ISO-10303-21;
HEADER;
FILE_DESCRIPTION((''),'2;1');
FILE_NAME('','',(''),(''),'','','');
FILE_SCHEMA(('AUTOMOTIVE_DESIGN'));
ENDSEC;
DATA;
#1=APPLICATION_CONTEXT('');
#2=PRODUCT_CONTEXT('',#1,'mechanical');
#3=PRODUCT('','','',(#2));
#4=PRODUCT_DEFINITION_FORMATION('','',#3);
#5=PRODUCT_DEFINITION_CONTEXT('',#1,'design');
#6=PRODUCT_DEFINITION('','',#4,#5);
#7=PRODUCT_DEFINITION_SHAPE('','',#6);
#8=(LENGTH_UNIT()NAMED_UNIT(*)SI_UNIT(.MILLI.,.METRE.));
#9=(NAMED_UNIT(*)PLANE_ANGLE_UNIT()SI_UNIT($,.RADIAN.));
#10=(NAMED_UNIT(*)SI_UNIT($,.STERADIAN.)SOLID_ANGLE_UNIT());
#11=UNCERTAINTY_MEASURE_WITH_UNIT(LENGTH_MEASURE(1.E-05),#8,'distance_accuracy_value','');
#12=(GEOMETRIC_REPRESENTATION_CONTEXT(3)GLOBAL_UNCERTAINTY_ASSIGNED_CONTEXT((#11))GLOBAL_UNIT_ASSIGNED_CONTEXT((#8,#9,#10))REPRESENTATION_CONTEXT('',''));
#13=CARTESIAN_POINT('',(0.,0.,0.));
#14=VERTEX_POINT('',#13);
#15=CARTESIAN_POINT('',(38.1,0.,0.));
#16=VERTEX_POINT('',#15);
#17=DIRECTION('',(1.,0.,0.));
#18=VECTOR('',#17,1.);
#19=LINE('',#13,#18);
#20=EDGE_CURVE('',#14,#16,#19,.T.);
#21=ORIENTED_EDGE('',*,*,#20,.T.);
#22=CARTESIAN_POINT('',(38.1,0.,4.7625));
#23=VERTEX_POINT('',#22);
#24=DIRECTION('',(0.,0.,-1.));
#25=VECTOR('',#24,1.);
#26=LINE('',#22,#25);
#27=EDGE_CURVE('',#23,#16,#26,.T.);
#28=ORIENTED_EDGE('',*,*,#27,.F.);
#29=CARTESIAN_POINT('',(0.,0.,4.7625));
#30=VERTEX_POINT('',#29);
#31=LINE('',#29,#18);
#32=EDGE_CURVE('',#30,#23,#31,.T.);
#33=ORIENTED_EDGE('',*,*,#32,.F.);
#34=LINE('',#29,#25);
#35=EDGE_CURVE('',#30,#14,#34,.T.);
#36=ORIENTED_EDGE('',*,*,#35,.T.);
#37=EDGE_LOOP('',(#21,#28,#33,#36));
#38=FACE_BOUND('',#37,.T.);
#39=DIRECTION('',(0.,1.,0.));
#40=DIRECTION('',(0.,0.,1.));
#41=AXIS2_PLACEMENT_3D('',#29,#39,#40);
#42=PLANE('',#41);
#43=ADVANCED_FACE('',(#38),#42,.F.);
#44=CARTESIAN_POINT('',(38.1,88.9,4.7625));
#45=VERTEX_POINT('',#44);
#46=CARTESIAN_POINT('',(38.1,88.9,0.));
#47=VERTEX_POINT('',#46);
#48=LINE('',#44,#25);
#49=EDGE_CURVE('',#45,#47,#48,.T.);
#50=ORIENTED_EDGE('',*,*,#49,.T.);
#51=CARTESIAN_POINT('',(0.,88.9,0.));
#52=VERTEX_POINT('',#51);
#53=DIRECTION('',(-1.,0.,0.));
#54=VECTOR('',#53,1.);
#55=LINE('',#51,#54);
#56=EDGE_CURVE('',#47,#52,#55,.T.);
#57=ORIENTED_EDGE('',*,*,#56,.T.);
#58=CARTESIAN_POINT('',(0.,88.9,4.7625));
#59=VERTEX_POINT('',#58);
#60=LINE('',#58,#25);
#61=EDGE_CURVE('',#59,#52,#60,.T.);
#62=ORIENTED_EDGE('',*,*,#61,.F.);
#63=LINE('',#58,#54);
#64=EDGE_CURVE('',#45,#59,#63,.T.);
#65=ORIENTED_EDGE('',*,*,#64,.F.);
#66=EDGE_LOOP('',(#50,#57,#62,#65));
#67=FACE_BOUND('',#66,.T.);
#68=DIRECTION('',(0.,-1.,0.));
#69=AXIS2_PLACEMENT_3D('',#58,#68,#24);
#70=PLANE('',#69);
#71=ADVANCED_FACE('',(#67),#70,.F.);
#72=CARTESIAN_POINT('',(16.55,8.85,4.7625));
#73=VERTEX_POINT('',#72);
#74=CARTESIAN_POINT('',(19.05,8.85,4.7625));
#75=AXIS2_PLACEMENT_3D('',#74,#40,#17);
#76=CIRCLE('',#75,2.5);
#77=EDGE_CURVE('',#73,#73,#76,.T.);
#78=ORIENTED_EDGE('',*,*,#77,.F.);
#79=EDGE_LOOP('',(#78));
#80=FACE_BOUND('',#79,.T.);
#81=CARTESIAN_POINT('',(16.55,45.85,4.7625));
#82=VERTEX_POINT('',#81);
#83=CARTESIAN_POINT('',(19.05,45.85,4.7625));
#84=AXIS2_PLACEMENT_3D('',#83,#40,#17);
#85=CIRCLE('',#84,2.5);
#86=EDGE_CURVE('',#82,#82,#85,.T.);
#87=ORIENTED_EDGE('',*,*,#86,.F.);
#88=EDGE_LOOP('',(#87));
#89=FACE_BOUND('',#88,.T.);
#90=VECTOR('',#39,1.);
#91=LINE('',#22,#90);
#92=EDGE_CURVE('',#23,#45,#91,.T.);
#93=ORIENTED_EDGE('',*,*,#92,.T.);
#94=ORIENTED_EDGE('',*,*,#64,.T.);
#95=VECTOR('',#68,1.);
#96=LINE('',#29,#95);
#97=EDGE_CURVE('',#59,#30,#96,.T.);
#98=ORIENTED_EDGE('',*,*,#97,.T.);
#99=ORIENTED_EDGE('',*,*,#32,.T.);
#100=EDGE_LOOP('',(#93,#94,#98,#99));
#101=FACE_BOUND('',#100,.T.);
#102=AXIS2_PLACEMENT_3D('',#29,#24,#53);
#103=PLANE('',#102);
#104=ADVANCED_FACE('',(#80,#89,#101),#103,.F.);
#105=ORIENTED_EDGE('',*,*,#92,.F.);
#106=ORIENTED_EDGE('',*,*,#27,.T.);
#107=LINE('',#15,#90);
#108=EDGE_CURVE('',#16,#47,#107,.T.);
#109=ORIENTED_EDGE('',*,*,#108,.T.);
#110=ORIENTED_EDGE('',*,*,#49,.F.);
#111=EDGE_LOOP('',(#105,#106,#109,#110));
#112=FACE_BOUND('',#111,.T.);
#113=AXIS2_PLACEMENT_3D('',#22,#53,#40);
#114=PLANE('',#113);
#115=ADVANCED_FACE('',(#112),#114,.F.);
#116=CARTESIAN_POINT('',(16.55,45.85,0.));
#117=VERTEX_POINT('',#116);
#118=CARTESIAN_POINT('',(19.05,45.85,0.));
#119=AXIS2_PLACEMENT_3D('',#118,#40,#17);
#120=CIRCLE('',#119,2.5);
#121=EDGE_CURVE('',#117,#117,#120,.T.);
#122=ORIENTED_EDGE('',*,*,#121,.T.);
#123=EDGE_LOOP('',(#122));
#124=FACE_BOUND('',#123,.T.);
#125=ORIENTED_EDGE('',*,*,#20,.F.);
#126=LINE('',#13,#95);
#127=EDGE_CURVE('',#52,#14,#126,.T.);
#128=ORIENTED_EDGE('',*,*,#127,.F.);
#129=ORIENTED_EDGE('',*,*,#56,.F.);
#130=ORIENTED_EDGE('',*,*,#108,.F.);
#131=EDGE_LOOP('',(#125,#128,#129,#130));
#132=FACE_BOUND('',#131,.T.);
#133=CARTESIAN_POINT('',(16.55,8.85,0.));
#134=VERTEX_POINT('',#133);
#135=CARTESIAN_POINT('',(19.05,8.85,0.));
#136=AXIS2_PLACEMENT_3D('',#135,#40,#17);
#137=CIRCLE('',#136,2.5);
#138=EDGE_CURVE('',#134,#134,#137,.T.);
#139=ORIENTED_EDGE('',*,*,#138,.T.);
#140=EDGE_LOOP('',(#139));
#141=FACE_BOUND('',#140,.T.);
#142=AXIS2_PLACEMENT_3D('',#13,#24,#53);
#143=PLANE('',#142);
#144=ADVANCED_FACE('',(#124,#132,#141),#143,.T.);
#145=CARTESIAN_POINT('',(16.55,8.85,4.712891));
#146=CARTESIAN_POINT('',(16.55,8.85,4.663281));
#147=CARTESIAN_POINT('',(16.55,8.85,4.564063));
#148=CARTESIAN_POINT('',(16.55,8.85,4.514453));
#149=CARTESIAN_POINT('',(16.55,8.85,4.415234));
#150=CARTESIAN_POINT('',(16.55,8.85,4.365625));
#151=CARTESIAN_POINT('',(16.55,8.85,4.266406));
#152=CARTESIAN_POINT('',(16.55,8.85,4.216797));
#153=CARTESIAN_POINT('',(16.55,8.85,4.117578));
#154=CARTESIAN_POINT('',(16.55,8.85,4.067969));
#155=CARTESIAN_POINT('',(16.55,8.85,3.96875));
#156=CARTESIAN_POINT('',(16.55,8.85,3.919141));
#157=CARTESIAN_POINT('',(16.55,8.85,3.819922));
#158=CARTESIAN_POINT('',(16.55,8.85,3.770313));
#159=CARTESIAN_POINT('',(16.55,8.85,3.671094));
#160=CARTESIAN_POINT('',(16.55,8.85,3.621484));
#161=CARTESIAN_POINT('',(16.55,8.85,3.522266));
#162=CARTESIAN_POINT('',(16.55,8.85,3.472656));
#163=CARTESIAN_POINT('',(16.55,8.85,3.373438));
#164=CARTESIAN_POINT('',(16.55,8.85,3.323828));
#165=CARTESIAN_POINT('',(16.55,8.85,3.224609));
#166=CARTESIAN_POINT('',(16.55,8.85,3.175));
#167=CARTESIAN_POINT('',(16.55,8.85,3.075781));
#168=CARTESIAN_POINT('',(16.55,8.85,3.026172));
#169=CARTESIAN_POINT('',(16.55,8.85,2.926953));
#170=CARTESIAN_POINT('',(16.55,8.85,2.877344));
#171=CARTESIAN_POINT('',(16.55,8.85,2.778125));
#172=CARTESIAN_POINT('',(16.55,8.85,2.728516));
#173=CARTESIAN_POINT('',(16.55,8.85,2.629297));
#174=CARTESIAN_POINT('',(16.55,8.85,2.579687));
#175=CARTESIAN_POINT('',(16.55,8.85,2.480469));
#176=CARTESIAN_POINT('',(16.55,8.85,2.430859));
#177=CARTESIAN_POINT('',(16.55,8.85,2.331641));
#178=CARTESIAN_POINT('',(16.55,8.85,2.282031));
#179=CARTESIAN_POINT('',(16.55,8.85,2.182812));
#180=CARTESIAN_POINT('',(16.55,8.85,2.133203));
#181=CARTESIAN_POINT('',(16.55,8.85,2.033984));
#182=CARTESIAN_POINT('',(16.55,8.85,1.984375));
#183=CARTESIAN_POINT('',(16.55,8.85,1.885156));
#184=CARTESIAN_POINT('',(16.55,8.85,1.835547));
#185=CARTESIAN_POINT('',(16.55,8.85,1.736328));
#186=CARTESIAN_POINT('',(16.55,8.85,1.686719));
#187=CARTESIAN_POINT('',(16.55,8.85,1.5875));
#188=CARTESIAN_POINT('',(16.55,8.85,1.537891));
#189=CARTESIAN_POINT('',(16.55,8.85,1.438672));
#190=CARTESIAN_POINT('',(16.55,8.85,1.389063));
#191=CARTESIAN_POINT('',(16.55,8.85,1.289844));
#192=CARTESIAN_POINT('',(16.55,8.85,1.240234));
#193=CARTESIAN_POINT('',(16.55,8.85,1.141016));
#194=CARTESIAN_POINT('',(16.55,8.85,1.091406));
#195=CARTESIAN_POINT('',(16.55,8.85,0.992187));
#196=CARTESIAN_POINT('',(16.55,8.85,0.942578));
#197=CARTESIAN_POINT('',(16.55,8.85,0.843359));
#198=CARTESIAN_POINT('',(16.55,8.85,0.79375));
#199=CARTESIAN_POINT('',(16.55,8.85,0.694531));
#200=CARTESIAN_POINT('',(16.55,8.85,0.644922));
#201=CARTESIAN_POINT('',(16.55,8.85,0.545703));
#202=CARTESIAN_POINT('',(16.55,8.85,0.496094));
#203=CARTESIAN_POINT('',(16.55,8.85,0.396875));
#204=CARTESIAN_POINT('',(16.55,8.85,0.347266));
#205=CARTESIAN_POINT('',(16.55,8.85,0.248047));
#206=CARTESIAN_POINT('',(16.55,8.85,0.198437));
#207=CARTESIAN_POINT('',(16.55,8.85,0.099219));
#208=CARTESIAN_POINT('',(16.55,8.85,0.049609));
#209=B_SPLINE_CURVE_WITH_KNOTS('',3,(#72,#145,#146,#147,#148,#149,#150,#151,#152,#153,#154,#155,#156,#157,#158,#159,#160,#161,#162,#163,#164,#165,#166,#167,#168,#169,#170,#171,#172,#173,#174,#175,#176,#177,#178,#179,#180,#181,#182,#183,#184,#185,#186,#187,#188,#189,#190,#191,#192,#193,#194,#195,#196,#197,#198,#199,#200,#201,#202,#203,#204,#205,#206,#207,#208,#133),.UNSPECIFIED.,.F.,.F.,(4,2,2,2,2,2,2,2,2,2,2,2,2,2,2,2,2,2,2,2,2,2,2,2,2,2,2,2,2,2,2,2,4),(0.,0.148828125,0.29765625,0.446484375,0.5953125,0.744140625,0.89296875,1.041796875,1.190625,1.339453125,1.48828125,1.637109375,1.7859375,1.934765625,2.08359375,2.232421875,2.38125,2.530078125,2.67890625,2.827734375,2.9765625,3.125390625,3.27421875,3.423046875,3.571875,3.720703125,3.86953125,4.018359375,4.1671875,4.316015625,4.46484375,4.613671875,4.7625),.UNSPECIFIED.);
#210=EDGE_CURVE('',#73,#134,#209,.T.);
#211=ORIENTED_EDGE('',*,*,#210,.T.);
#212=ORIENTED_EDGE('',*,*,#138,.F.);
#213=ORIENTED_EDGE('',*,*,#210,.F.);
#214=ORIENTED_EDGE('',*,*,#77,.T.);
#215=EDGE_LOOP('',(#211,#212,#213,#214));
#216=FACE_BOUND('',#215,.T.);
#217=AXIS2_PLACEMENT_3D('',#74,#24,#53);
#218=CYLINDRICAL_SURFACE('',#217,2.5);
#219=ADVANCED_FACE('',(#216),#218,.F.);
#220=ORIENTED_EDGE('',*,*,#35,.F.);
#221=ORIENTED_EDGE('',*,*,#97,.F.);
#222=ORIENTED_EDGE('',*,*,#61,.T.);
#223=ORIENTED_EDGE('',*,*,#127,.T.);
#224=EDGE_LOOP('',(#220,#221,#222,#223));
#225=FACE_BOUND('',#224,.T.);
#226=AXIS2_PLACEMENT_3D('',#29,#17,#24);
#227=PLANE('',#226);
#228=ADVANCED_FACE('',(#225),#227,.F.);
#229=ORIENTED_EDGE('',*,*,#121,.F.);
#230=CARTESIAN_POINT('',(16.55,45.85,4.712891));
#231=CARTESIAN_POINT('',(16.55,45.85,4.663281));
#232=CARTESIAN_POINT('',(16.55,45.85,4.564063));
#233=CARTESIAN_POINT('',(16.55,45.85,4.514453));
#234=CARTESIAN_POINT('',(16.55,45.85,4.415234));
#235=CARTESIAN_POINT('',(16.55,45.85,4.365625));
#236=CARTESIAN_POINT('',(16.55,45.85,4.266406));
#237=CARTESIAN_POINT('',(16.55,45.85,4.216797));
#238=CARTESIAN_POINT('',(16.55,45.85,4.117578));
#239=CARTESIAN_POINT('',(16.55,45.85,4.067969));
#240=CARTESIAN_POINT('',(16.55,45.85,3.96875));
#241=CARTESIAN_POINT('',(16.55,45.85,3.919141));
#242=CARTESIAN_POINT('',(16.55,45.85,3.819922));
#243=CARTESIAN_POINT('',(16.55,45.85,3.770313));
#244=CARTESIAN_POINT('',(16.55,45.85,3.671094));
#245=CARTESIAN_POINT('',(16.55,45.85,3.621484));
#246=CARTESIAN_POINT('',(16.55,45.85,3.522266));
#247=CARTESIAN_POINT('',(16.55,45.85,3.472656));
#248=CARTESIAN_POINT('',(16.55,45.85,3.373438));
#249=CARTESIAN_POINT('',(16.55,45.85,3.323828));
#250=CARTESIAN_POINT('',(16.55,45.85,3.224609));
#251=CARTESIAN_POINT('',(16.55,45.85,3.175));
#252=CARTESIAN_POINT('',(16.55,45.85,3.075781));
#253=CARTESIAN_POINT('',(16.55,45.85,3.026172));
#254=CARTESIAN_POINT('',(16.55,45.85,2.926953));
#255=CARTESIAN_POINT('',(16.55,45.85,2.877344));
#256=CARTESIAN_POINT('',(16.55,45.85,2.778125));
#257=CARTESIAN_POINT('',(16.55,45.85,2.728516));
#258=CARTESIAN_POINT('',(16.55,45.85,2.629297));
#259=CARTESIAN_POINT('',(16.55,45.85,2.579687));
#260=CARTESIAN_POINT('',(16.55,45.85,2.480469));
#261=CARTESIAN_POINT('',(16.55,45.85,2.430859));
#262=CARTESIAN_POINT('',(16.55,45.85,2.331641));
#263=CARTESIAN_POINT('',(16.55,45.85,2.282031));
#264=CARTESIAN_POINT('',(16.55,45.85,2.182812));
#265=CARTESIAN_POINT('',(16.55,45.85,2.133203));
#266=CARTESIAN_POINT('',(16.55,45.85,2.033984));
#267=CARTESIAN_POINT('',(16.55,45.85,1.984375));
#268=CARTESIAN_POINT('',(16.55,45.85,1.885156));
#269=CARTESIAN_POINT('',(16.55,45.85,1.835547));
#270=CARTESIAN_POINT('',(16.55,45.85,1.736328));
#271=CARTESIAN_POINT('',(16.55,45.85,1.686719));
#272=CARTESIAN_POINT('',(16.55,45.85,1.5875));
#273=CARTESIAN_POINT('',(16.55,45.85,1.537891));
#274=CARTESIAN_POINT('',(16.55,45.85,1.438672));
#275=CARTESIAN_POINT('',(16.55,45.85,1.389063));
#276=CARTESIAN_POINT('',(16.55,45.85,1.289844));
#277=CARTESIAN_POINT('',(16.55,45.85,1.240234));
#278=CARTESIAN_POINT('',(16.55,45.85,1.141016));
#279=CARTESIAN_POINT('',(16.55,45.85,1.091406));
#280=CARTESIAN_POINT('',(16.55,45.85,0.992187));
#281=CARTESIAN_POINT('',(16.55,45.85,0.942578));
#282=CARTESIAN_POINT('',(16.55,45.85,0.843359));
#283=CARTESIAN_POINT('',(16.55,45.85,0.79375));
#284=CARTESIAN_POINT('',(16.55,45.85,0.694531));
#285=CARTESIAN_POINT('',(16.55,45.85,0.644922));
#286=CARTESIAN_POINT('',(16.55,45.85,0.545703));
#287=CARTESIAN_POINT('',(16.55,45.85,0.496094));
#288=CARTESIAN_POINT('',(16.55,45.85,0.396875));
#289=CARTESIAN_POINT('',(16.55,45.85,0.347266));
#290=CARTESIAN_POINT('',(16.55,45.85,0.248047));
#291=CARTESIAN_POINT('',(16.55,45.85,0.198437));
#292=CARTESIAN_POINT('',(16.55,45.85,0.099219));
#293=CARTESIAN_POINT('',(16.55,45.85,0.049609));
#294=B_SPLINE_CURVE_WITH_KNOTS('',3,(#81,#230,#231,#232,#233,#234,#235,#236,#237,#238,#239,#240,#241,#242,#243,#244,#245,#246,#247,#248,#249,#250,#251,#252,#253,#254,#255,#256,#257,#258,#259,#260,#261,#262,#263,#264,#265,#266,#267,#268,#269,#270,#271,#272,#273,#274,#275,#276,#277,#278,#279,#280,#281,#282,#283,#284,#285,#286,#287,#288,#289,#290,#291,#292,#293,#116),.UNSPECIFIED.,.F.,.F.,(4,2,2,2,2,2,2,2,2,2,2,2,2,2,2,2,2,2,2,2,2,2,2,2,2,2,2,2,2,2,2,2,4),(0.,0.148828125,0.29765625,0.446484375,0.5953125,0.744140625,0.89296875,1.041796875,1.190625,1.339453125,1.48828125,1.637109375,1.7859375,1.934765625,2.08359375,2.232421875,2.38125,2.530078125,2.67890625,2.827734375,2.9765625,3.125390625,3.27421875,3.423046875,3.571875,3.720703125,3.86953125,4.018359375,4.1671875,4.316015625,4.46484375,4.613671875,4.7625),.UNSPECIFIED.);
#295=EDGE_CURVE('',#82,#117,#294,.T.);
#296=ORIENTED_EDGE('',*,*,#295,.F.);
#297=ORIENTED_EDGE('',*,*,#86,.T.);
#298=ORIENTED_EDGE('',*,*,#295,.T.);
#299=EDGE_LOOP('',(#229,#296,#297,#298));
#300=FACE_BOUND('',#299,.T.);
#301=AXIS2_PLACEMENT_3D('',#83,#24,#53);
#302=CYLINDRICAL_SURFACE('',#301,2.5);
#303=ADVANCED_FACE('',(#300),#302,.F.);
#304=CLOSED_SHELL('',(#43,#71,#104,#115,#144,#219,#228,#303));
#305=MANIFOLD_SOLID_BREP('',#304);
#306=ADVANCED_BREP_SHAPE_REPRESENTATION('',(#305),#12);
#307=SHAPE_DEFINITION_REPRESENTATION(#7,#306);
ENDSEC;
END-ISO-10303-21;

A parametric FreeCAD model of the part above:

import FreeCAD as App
import Part
import Sketcher
Q = App.Units.Quantity

doc = App.newDocument("Part")
body = doc.addObject("PartDesign::Body", "Body")

# Sketch on XY plane
sketch1 = body.newObject("Sketcher::SketchObject", "Sketch")
sketch1.AttachmentSupport = (doc.getObject("XY_Plane"), [""])
sketch1.MapMode = "FlatFace"
sketch1.addGeometry([
    Part.LineSegment(App.Vector(0, 88.9, 0), App.Vector(0, 0, 0)),  # 0
    Part.LineSegment(App.Vector(0, 0, 0), App.Vector(38.1, 0, 0)),  # 1
    Part.LineSegment(App.Vector(38.1, 0, 0), App.Vector(38.1, 88.9, 0)),  # 2
    Part.LineSegment(App.Vector(38.1, 88.9, 0), App.Vector(0, 88.9, 0)),  # 3
    Part.Circle(App.Vector(19.05, 8.85, 0), App.Vector(0, 0, 1), 2.5),  # 4
    Part.Circle(App.Vector(19.05, 45.85, 0), App.Vector(0, 0, 1), 2.5),  # 5
], False)
sketch1.addConstraint([
    Sketcher.Constraint("Coincident", 0, 2, 1, 1),
    Sketcher.Constraint("Coincident", 1, 2, 2, 1),
    Sketcher.Constraint("Coincident", 2, 2, 3, 1),
    Sketcher.Constraint("Coincident", 3, 2, 0, 1),
    Sketcher.Constraint("Vertical", 0),
    Sketcher.Constraint("Horizontal", 1),
    Sketcher.Constraint("Vertical", 2),
    Sketcher.Constraint("Horizontal", 3),
    Sketcher.Constraint("Coincident", 0, 2, -1, 1),
    Sketcher.Constraint("Equal", 4, 5),
    Sketcher.Constraint("Vertical", 4, 3, 5, 3),
    Sketcher.Constraint("DistanceX", 1, 1, 1, 2, Q("1.5 in")),
    Sketcher.Constraint("DistanceY", 0, 2, 0, 1, Q("3.5 in")),
    Sketcher.Constraint("Diameter", 4, Q("5 mm")),
    Sketcher.Constraint("DistanceX", -1, 1, 4, 3, Q("0.75 in")),
    Sketcher.Constraint("DistanceY", -1, 1, 4, 3, Q("8.85 mm")),
    Sketcher.Constraint("DistanceY", -1, 1, 5, 3, Q("45.85 mm")),
])
pad1 = body.newObject("PartDesign::Pad", "Pad")
pad1.Profile = sketch1
pad1.Length = Q("0.1875 in")

doc.recompute()
